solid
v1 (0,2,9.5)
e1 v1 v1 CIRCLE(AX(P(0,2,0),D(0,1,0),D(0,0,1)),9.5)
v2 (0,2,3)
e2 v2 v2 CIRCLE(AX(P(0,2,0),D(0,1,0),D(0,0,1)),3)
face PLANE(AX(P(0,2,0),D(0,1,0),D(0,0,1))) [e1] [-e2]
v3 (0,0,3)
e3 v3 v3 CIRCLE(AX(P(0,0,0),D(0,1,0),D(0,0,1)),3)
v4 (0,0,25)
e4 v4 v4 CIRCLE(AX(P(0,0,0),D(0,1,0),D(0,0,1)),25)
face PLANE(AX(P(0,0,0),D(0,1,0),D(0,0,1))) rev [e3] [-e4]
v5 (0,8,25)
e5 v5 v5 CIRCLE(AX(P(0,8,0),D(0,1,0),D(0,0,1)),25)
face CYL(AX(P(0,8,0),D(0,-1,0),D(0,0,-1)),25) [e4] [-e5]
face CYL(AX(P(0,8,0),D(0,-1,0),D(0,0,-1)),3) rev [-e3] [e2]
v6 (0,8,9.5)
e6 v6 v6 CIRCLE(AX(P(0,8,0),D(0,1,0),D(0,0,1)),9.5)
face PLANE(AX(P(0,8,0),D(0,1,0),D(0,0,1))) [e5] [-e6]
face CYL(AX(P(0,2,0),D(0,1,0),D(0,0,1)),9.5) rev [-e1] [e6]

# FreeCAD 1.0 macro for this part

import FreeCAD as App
import Part
import Sketcher
from FreeCAD import Vector
Q = App.Units.Quantity

doc = App.newDocument("Part")
params = doc.addObject("Spreadsheet::Sheet", "Params")
for row, (alias, value) in enumerate([
    ("sketch1_diameter", "50 mm"),
    ("pad1_length", "8 mm"),
    ("sketch2_diameter", "19 mm"),
    ("pocket1_length", "6 mm"),
    ("sketch3_diameter", "6 mm"),
], start=1):
    params.set(f"A{row}", alias)
    params.set(f"B{row}", "=" + value)
    params.setAlias(f"B{row}", alias)

body = doc.addObject("PartDesign::Body", "Body")

# Sketch on XZ plane
sketch1 = body.newObject("Sketcher::SketchObject", "Sketch")
sketch1.AttachmentSupport = (doc.getObject("XZ_Plane"), [""])
sketch1.MapMode = "FlatFace"
sketch1.addGeometry(Part.Circle(Vector(0, 0, 0), Vector(0, 0, 1), 25), False)
sketch1.addConstraint(Sketcher.Constraint("Coincident", 0, 3, -1, 1))
sketch1.addConstraint(Sketcher.Constraint("Diameter", 0, Q("50 mm")))
sketch1.setExpression("Constraints[1]", "Params.sketch1_diameter")
pad1 = body.newObject("PartDesign::Pad", "Pad")
pad1.Profile = sketch1
pad1.setExpression("Length", "Params.pad1_length")
pad1.Reversed = True

# Sketch on XZ plane
sketch2 = body.newObject("Sketcher::SketchObject", "Sketch001")
sketch2.AttachmentSupport = (doc.getObject("XZ_Plane"), [""])
sketch2.MapMode = "FlatFace"
sketch2.AttachmentOffset = App.Placement(Vector(0, 0, -8), App.Rotation())
sketch2.addGeometry(Part.Circle(Vector(0, 0, 0), Vector(0, 0, 1), 10), False)
sketch2.addConstraint(Sketcher.Constraint("Coincident", 0, 3, -1, 1))
sketch2.addConstraint(Sketcher.Constraint("Diameter", 0, Q("19 mm")))
sketch2.setExpression("Constraints[1]", "Params.sketch2_diameter")
pocket1 = body.newObject("PartDesign::Pocket", "Pocket")
pocket1.Profile = sketch2
pocket1.setExpression("Length", "Params.pocket1_length")
pocket1.Reversed = True

# Sketch on XZ plane
sketch3 = body.newObject("Sketcher::SketchObject", "Sketch002")
sketch3.AttachmentSupport = (doc.getObject("XZ_Plane"), [""])
sketch3.MapMode = "FlatFace"
sketch3.addGeometry(Part.Circle(Vector(0, 0, 0), Vector(0, 0, 1), 3), False)
sketch3.addConstraint(Sketcher.Constraint("Coincident", 0, 3, -1, 1))
sketch3.addConstraint(Sketcher.Constraint("Diameter", 0, Q("6 mm")))
sketch3.setExpression("Constraints[1]", "Params.sketch3_diameter")
pocket2 = body.newObject("PartDesign::Pocket", "Pocket001")
pocket2.Profile = sketch3
pocket2.Type = "ThroughAll"
pocket2.Midplane = True

doc.recompute()
